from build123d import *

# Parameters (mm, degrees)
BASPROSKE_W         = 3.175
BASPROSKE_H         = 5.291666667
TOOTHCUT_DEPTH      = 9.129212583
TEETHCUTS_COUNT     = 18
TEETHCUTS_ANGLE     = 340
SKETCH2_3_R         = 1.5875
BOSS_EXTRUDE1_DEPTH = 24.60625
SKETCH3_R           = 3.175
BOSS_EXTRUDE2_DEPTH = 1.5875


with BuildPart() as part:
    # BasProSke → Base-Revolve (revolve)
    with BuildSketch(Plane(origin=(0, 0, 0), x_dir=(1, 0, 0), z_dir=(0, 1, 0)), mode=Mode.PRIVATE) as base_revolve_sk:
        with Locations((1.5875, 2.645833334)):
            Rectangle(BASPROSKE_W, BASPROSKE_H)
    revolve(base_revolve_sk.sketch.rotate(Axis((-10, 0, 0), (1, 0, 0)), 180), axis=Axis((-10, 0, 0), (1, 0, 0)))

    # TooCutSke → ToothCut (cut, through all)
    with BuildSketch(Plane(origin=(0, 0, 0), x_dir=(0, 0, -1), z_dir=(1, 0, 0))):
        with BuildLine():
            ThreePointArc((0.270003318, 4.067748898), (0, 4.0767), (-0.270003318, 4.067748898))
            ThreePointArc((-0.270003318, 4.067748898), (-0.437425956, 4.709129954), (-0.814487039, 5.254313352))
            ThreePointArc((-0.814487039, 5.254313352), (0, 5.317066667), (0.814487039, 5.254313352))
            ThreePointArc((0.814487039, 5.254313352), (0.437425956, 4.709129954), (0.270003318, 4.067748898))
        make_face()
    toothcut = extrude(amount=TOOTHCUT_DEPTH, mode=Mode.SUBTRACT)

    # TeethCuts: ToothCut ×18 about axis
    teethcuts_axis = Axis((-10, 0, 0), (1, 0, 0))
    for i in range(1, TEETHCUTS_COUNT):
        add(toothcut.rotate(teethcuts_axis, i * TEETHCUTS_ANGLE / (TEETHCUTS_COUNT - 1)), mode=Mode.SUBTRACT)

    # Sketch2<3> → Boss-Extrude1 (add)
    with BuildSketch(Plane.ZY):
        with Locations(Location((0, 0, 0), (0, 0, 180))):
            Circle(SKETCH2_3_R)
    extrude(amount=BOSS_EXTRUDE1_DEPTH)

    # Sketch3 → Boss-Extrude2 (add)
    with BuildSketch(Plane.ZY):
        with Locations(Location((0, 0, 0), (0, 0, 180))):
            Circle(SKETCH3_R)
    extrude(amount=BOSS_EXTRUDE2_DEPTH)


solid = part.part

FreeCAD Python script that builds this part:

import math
import FreeCAD as App
import Part
import Sketcher
from FreeCAD import Vector
Q = App.Units.Quantity


def add_polygon(sketch, points):
    """Adds a closed chain of lines whose ends are joined by coincident constraints."""
    first, n = sketch.GeometryCount, len(points)
    for a, b in zip(points, points[1:] + points[:1]):
        sketch.addGeometry(Part.LineSegment(App.Vector(*a, 0), App.Vector(*b, 0)), False)
    for i in range(n):
        sketch.addConstraint(Sketcher.Constraint("Coincident", first + i, 2, first + (i + 1) % n, 1))

doc = App.newDocument("Part")
params = doc.addObject("Spreadsheet::Sheet", "Params")
for row, (alias, value) in enumerate([
    ("sketch1_width", "0.125 in"),
    ("revolution_angle", "360 deg"),
    ("sketch2_radius", "0.075 in"),
    ("sketch3_diameter", "0.125 in"),
    ("pad1_length", "0.96875 in"),
    ("sketch4_diameter", "0.25 in"),
    ("pad2_length", "0.0625 in"),
], start=1):
    params.set(f"A{row}", alias)
    params.set(f"B{row}", "=" + value)
    params.setAlias(f"B{row}", alias)

body = doc.addObject("PartDesign::Body", "Body")

# Sketch on XZ plane
sketch1 = body.newObject("Sketcher::SketchObject", "Sketch")
sketch1.AttachmentSupport = (doc.getObject("XZ_Plane"), [""])
sketch1.MapMode = "FlatFace"
add_polygon(sketch1, [(0, -5.291667), (0, 0), (3.175, 0), (3.175, -5.291667)])  # lines 0-3
sketch1.addConstraint([
    Sketcher.Constraint("Vertical", 0),
    Sketcher.Constraint("Horizontal", 1),
    Sketcher.Constraint("Vertical", 2),
    Sketcher.Constraint("Horizontal", 3),
    Sketcher.Constraint("Coincident", 0, 2, -1, 1),
    Sketcher.Constraint("DistanceX", 1, 1, 1, 2, Q("0.125 in")),
    Sketcher.Constraint("DistanceY", 0, 1, 0, 2, 5.291667),
])
sketch1.setExpression("Constraints[9]", "Params.sketch1_width")
revolution = body.newObject("PartDesign::Revolution", "Revolution")
revolution.Profile = sketch1
revolution.ReferenceAxis = (sketch1, ["H_Axis"])
revolution.setExpression("Angle", "Params.revolution_angle")

# Sketch on YZ plane
sketch2 = body.newObject("Sketcher::SketchObject", "Sketch001")
sketch2.AttachmentSupport = (doc.getObject("YZ_Plane"), [""])
sketch2.MapMode = "FlatFace"
sketch2.addGeometry([
    Part.ArcOfCircle(Part.Circle(Vector(0, 0, 0), Vector(0, 0, 1), 4.0767), math.radians(-3.797528), math.radians(3.797528)),
    Part.ArcOfCircle(Part.Circle(Vector(3.914629, -2.16884, 0), Vector(0, 0, 1), 1.905), math.radians(45.311956), math.radians(85.389713)),
    Part.ArcOfCircle(Part.Circle(Vector(0, 0, 0), Vector(0, 0, 1), 5.317067), math.radians(-8.811462), math.radians(8.811462)),
    Part.ArcOfCircle(Part.Circle(Vector(3.914629, 2.16884, 0), Vector(0, 0, 1), 1.905), math.radians(-85.389713), math.radians(-45.311956)),
], False)
sketch2.addConstraint([
    Sketcher.Constraint("Coincident", 0, 1, 1, 2),
    Sketcher.Constraint("Coincident", 1, 1, 2, 1),
    Sketcher.Constraint("Coincident", 2, 2, 3, 2),
    Sketcher.Constraint("Coincident", 3, 1, 0, 2),
    Sketcher.Constraint("Coincident", 0, 3, -1, 1),
    Sketcher.Constraint("Coincident", 2, 3, -1, 1),
    Sketcher.Constraint("Equal", 1, 3),
    Sketcher.Constraint("Symmetric", 1, 3, 3, 3, -1),
    Sketcher.Constraint("Radius", 1, Q("0.075 in")),
    Sketcher.Constraint("Radius", 0, Q("0.1605 in")),
    Sketcher.Constraint("Radius", 2, 5.317067),
    Sketcher.Constraint("DistanceX", -1, 1, 1, 3, 3.914629),
    Sketcher.Constraint("DistanceY", 1, 3, -1, 1, 2.16884),
])
sketch2.setExpression("Constraints[8]", "Params.sketch2_radius")
pocket1 = body.newObject("PartDesign::Pocket", "Pocket")
pocket1.Profile = sketch2
pocket1.Type = "ThroughAll"
pocket1.Reversed = True
doc.recompute()

polarpattern = body.newObject("PartDesign::PolarPattern", "PolarPattern")
polarpattern.Originals = [pocket1]
polarpattern.Axis = (doc.getObject("X_Axis"), [""])
polarpattern.Angle = 360
polarpattern.Occurrences = 18
body.Tip = polarpattern

# Sketch on YZ plane
sketch3 = body.newObject("Sketcher::SketchObject", "Sketch002")
sketch3.AttachmentSupport = (doc.getObject("YZ_Plane"), [""])
sketch3.MapMode = "FlatFace"
sketch3.addGeometry(Part.Circle(Vector(0, 0, 0), Vector(0, 0, 1), 1.5875), False)
sketch3.addConstraint([
    Sketcher.Constraint("Coincident", 0, 3, -1, 1),
    Sketcher.Constraint("Diameter", 0, Q("0.125 in")),
])
sketch3.setExpression("Constraints[1]", "Params.sketch3_diameter")
pad1 = body.newObject("PartDesign::Pad", "Pad")
pad1.Profile = sketch3
pad1.setExpression("Length", "Params.pad1_length")
pad1.Reversed = True

# Sketch on YZ plane
sketch4 = body.newObject("Sketcher::SketchObject", "Sketch003")
sketch4.AttachmentSupport = (doc.getObject("YZ_Plane"), [""])
sketch4.MapMode = "FlatFace"
sketch4.addGeometry(Part.Circle(Vector(0, 0, 0), Vector(0, 0, 1), 3.175), False)
sketch4.addConstraint([
    Sketcher.Constraint("Coincident", 0, 3, -1, 1),
    Sketcher.Constraint("Diameter", 0, Q("0.25 in")),
])
sketch4.setExpression("Constraints[1]", "Params.sketch4_diameter")
pad2 = body.newObject("PartDesign::Pad", "Pad001")
pad2.Profile = sketch4
pad2.setExpression("Length", "Params.pad2_length")
pad2.Reversed = True

doc.recompute()
